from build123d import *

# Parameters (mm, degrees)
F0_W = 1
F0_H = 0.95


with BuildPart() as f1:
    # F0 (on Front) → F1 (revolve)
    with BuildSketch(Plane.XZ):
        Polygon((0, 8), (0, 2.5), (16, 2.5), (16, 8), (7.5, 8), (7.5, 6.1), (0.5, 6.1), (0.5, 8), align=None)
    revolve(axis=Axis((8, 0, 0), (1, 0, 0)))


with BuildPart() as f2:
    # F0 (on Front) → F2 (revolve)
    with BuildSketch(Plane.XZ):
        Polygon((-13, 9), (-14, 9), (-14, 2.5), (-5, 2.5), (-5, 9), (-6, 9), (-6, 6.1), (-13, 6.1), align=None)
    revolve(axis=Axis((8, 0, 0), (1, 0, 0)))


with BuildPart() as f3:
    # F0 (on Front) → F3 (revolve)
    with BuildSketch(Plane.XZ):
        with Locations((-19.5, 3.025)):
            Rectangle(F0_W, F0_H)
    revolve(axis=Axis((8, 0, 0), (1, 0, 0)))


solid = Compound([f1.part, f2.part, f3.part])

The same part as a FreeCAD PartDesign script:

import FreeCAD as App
import Part
import Sketcher
from FreeCAD import Vector
Q = App.Units.Quantity


def add_polygon(sketch, points):
    """Adds a closed chain of lines whose ends are joined by coincident constraints."""
    first, n = sketch.GeometryCount, len(points)
    for a, b in zip(points, points[1:] + points[:1]):
        sketch.addGeometry(Part.LineSegment(App.Vector(*a, 0), App.Vector(*b, 0)), False)
    for i in range(n):
        sketch.addConstraint(Sketcher.Constraint("Coincident", first + i, 2, first + (i + 1) % n, 1))

doc = App.newDocument("Part")
body = doc.addObject("PartDesign::Body", "Body")

# Sketch on XZ plane
sketch1 = body.newObject("Sketcher::SketchObject", "Sketch")
sketch1.AttachmentSupport = (doc.getObject("XZ_Plane"), [""])
sketch1.MapMode = "FlatFace"
add_polygon(sketch1, [(0, 8), (0, 2.5), (16, 2.5), (16, 8), (7.5, 8), (7.5, 6.1), (0.5, 6.1), (0.5, 8)])  # lines 0-7
sketch1.addConstraint([
    Sketcher.Constraint("Vertical", 0),
    Sketcher.Constraint("Horizontal", 1),
    Sketcher.Constraint("Vertical", 2),
    Sketcher.Constraint("Horizontal", 3),
    Sketcher.Constraint("Vertical", 4),
    Sketcher.Constraint("Horizontal", 5),
    Sketcher.Constraint("Vertical", 6),
    Sketcher.Constraint("Horizontal", 7),
    Sketcher.Constraint("PointOnObject", 0, 2, -2),
    Sketcher.Constraint("Horizontal", 3, 2, 6, 2),
    Sketcher.Constraint("DistanceX", 1, 1, 1, 2, Q("16 mm")),
    Sketcher.Constraint("DistanceX", 5, 2, 5, 1, Q("7 mm")),
    Sketcher.Constraint("DistanceX", 3, 2, 3, 1, Q("8.5 mm")),
    Sketcher.Constraint("DistanceY", 0, 2, 0, 1, Q("5.5 mm")),
    Sketcher.Constraint("DistanceY", 4, 2, 4, 1, Q("1.9 mm")),
    Sketcher.Constraint("DistanceY", -1, 1, 2, 2, Q("8 mm")),
])
revolution = body.newObject("PartDesign::Revolution", "Revolution")
revolution.Profile = sketch1
revolution.ReferenceAxis = (sketch1, ["H_Axis"])
revolution.Angle = 360
body2 = doc.addObject("PartDesign::Body", "Body001")

# Sketch on XZ plane
sketch2 = body2.newObject("Sketcher::SketchObject", "Sketch001")
sketch2.AttachmentSupport = (doc.getObject("XZ_Plane001"), [""])
sketch2.MapMode = "FlatFace"
add_polygon(sketch2, [(-13, 9), (-14, 9), (-14, 2.5), (-5, 2.5), (-5, 9), (-6, 9), (-6, 6.1), (-13, 6.1)])  # lines 0-7
sketch2.addConstraint([
    Sketcher.Constraint("Horizontal", 0),
    Sketcher.Constraint("Vertical", 1),
    Sketcher.Constraint("Horizontal", 2),
    Sketcher.Constraint("Vertical", 3),
    Sketcher.Constraint("Horizontal", 4),
    Sketcher.Constraint("Vertical", 5),
    Sketcher.Constraint("Horizontal", 6),
    Sketcher.Constraint("Vertical", 7),
    Sketcher.Constraint("Horizontal", 0, 2, 3, 2),
    Sketcher.Constraint("Equal", 0, 4),
    Sketcher.Constraint("DistanceX", 0, 2, 0, 1, Q("1 mm")),
    Sketcher.Constraint("DistanceX", 2, 1, 2, 2, Q("9 mm")),
    Sketcher.Constraint("DistanceY", 1, 2, 1, 1, Q("6.5 mm")),
    Sketcher.Constraint("DistanceY", 5, 2, 5, 1, Q("2.9 mm")),
    Sketcher.Constraint("DistanceX", 0, 2, -1, 1, Q("14 mm")),
    Sketcher.Constraint("DistanceY", -1, 1, 0, 2, Q("9 mm")),
])
revolution2 = body2.newObject("PartDesign::Revolution", "Revolution001")
revolution2.Profile = sketch2
revolution2.ReferenceAxis = (sketch2, ["H_Axis"])
revolution2.Angle = 360
body3 = doc.addObject("PartDesign::Body", "Body002")

# Sketch on XZ plane
sketch3 = body3.newObject("Sketcher::SketchObject", "Sketch002")
sketch3.AttachmentSupport = (doc.getObject("XZ_Plane002"), [""])
sketch3.MapMode = "FlatFace"
add_polygon(sketch3, [(-20, 3.5), (-20, 2.5), (-19, 2.5), (-19, 3.5)])  # lines 0-3
sketch3.addConstraint([
    Sketcher.Constraint("Vertical", 0),
    Sketcher.Constraint("Horizontal", 1),
    Sketcher.Constraint("Vertical", 2),
    Sketcher.Constraint("Horizontal", 3),
    Sketcher.Constraint("DistanceX", 1, 1, 1, 2, Q("1 mm")),
    Sketcher.Constraint("DistanceX", 0, 2, -1, 1, Q("20 mm")),
    Sketcher.Constraint("DistanceY", 0, 2, 0, 1, Q("0.95 mm")),
    Sketcher.Constraint("DistanceY", -1, 1, 2, 2, Q("3.5 mm")),
])
revolution3 = body3.newObject("PartDesign::Revolution", "Revolution002")
revolution3.Profile = sketch3
revolution3.ReferenceAxis = (sketch3, ["H_Axis"])
revolution3.Angle = 360

doc.recompute()
